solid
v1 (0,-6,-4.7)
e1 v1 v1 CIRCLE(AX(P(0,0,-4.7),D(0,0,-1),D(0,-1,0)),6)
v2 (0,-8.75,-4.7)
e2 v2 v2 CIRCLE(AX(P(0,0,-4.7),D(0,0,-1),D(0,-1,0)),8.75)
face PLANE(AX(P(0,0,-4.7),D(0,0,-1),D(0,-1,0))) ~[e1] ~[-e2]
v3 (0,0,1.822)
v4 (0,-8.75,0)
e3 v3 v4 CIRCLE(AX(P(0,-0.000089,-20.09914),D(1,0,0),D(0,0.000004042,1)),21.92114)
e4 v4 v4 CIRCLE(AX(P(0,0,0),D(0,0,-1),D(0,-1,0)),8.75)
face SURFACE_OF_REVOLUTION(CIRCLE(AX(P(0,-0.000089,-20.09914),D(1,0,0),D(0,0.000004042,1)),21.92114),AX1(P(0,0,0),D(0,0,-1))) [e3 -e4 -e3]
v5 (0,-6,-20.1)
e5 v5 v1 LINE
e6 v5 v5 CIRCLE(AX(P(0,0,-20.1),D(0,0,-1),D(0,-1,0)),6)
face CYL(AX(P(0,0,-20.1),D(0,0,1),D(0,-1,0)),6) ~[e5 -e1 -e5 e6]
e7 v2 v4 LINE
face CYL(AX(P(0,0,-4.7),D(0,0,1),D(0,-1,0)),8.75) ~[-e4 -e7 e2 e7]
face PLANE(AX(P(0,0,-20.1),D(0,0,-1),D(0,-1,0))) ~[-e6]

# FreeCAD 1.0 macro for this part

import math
import FreeCAD as App
import Part
import Sketcher
Q = App.Units.Quantity

doc = App.newDocument("Part")
body = doc.addObject("PartDesign::Body", "Body")

sketch1 = doc.addObject("Sketcher::SketchObject", "Sketch")
body.addObject(sketch1)
sketch1.AttachmentSupport = (doc.YZ_Plane, [""])
sketch1.MapMode = "FlatFace"
sketch1.addGeometry([
    Part.LineSegment(App.Vector(0, -20.1, 0), App.Vector(0, 1.8, 0)),
    Part.ArcOfCircle(Part.Circle(App.Vector(0, -20.1, 0), App.Vector(0, 0, 1), 21.9), math.radians(90), math.radians(114)),
    Part.LineSegment(App.Vector(-8.8, 0, 0), App.Vector(-8.8, -4.7, 0)),
    Part.LineSegment(App.Vector(-8.8, -4.7, 0), App.Vector(-6, -4.7, 0)),
    Part.LineSegment(App.Vector(-6, -4.7, 0), App.Vector(-6, -20.1, 0)),
    Part.LineSegment(App.Vector(-6, -20.1, 0), App.Vector(0, -20.1, 0)),
], False)
sketch1.addConstraint([
    Sketcher.Constraint("Coincident", 0, 2, 1, 1),
    Sketcher.Constraint("Coincident", 1, 2, 2, 1),
    Sketcher.Constraint("Coincident", 2, 2, 3, 1),
    Sketcher.Constraint("Coincident", 3, 2, 4, 1),
    Sketcher.Constraint("Coincident", 4, 2, 5, 1),
    Sketcher.Constraint("Coincident", 5, 2, 0, 1),
    Sketcher.Constraint("Vertical", 0),
    Sketcher.Constraint("Vertical", 2),
    Sketcher.Constraint("Horizontal", 3),
    Sketcher.Constraint("Vertical", 4),
    Sketcher.Constraint("Horizontal", 5),
    Sketcher.Constraint("Coincident", 5, 2, 1, 3),
    Sketcher.Constraint("PointOnObject", 1, 3, -2),
    Sketcher.Constraint("PointOnObject", 1, 2, -1),
    Sketcher.Constraint("DistanceX", 5, 1, 5, 2, Q("6 mm")),
    Sketcher.Constraint("DistanceY", 4, 2, 4, 1, Q("15.4 mm")),
    Sketcher.Constraint("DistanceY", 1, 3, -1, 1, Q("20.1 mm")),
    Sketcher.Constraint("DistanceX", 1, 2, -1, 1, Q("8.75 mm")),
])
revolution = doc.addObject("PartDesign::Revolution", "Revolution")
body.addObject(revolution)
revolution.Profile = sketch1
revolution.ReferenceAxis = (sketch1, ["V_Axis"])
revolution.Angle = 360

doc.recompute()
